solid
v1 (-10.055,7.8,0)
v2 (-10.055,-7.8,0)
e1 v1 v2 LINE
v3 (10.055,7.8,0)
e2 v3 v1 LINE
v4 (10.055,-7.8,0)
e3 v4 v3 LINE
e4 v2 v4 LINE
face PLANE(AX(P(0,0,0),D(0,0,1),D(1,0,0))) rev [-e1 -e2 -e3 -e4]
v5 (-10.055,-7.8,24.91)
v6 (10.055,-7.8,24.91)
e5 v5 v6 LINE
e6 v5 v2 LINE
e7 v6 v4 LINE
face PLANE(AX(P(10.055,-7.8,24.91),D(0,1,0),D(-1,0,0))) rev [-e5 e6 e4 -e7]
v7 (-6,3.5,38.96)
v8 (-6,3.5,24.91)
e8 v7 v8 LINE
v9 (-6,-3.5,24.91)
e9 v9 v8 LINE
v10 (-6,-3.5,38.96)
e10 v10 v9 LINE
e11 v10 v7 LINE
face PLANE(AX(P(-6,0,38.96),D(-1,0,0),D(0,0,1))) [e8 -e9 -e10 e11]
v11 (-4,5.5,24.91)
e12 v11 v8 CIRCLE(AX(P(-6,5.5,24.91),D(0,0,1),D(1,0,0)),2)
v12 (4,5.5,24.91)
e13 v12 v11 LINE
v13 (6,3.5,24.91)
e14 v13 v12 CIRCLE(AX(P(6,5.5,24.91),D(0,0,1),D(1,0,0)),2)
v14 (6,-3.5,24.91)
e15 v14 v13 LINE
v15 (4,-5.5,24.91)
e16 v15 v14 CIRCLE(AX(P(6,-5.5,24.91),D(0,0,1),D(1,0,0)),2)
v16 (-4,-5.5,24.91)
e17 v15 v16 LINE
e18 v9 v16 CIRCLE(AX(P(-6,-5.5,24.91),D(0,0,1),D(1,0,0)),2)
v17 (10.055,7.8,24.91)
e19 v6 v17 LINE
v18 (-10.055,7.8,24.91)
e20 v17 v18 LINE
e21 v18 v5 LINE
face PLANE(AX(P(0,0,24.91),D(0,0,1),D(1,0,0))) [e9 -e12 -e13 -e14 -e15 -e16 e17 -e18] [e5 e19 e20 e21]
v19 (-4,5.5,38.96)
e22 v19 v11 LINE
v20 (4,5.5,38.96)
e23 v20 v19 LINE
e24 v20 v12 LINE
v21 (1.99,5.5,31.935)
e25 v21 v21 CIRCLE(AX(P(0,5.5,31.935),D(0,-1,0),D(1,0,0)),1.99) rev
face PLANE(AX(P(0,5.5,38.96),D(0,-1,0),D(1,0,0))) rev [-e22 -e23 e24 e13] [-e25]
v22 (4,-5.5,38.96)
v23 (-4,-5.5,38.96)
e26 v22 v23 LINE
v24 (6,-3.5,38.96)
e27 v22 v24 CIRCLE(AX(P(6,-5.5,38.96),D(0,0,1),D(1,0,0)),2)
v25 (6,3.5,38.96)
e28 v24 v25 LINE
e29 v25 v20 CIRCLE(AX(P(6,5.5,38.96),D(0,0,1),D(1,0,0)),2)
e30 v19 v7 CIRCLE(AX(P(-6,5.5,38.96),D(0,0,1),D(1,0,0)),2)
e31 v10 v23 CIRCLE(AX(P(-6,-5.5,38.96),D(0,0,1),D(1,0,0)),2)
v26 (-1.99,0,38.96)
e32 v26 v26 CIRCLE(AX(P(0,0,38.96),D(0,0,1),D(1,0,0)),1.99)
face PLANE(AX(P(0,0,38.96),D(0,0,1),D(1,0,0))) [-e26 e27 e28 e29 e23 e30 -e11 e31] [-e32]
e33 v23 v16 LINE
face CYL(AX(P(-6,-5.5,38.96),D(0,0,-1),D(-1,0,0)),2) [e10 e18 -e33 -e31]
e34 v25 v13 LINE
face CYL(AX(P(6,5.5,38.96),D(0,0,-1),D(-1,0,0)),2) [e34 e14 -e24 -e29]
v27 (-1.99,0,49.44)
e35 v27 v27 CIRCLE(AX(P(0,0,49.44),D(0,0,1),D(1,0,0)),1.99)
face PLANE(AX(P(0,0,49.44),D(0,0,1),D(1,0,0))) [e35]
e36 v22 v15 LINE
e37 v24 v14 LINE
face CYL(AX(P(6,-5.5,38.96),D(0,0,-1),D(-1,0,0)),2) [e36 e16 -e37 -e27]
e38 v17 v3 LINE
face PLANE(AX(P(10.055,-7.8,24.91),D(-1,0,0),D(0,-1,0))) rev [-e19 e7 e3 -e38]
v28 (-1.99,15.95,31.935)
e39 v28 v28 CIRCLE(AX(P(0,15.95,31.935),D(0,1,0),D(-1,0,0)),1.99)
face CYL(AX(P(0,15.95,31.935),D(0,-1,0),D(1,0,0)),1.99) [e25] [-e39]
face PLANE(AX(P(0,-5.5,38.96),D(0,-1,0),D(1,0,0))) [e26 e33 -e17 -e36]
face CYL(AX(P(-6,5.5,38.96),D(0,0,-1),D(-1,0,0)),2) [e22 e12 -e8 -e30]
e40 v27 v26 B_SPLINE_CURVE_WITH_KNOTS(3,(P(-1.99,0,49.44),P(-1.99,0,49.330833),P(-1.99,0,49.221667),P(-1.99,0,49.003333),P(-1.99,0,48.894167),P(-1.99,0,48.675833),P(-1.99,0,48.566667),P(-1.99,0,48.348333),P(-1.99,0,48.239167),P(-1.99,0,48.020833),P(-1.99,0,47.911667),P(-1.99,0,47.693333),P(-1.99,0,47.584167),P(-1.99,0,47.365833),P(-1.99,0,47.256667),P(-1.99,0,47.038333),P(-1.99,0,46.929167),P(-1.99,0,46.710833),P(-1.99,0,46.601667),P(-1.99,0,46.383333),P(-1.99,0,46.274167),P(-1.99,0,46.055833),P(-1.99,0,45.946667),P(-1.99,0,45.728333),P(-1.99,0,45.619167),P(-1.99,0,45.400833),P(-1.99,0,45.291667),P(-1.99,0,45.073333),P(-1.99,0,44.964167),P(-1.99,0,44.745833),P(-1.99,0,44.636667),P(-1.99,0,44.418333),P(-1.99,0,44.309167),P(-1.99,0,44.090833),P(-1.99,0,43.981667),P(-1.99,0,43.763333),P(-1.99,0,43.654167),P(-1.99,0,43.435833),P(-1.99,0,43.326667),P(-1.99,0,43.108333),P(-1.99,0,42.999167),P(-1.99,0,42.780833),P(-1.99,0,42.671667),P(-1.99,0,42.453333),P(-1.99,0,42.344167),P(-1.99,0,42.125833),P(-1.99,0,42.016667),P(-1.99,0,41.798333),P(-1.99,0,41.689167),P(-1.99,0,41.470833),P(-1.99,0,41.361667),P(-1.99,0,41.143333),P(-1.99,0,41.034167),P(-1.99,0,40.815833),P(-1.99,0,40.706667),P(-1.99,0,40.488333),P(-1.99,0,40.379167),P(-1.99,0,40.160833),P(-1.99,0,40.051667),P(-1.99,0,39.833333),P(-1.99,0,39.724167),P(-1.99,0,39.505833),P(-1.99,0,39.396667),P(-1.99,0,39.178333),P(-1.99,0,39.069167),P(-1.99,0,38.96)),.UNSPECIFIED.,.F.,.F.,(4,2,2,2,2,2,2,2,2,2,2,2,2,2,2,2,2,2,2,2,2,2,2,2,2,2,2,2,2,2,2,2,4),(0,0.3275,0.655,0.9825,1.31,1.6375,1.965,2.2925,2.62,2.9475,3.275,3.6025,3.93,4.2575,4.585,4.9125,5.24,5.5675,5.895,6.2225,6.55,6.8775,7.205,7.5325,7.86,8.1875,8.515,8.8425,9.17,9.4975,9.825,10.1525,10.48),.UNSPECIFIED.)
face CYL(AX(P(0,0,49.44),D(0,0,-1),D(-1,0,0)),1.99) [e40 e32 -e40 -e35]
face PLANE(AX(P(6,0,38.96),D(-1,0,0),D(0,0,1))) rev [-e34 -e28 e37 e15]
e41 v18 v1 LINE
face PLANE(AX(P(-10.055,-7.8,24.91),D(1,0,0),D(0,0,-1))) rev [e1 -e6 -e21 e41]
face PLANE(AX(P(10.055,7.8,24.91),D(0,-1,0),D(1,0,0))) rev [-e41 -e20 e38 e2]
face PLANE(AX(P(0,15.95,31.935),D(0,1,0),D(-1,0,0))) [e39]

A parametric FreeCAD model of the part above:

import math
import FreeCAD as App
import Part
import Sketcher
from FreeCAD import Vector

doc = App.newDocument("Part")
body = doc.addObject("PartDesign::Body", "Body")

# Sketch on XY plane
sketch1 = body.newObject("Sketcher::SketchObject", "Sketch")
sketch1.AttachmentSupport = (doc.getObject("XY_Plane"), [""])
sketch1.MapMode = "FlatFace"
sketch1.addGeometry(Part.LineSegment(Vector(-10, 8, 0), Vector(-10, -8, 0)), False)
sketch1.addGeometry(Part.LineSegment(Vector(-10, -8, 0), Vector(10, -8, 0)), False)
sketch1.addGeometry(Part.LineSegment(Vector(10, -8, 0), Vector(10, 8, 0)), False)
sketch1.addGeometry(Part.LineSegment(Vector(10, 8, 0), Vector(-10, 8, 0)), False)
sketch1.addConstraint(Sketcher.Constraint("Coincident", 0, 2, 1, 1))
sketch1.addConstraint(Sketcher.Constraint("Coincident", 1, 2, 2, 1))
sketch1.addConstraint(Sketcher.Constraint("Coincident", 2, 2, 3, 1))
sketch1.addConstraint(Sketcher.Constraint("Coincident", 3, 2, 0, 1))
sketch1.addConstraint(Sketcher.Constraint("Vertical", 0))
sketch1.addConstraint(Sketcher.Constraint("Horizontal", 1))
sketch1.addConstraint(Sketcher.Constraint("Vertical", 2))
sketch1.addConstraint(Sketcher.Constraint("Horizontal", 3))
sketch1.addConstraint(Sketcher.Constraint("Symmetric", 0, 2, 2, 2, -1, 1))
sketch1.addConstraint(Sketcher.Constraint("DistanceY", 0, 2, 0, 1, 15.6))
sketch1.addConstraint(Sketcher.Constraint("DistanceX", 1, 1, 1, 2, 20.11))
pad1 = body.newObject("PartDesign::Pad", "Pad")
pad1.Profile = sketch1
pad1.Length = 24.91

# Sketch on XY plane
sketch2 = body.newObject("Sketcher::SketchObject", "Sketch001")
sketch2.AttachmentSupport = (doc.getObject("XY_Plane"), [""])
sketch2.MapMode = "FlatFace"
sketch2.AttachmentOffset = App.Placement(Vector(0, 0, 24.91), App.Rotation())
sketch2.addGeometry(Part.ArcOfCircle(Part.Circle(Vector(-6, 5.5, 0), Vector(0, 0, 1), 2), math.radians(0), math.radians(270)), False)
sketch2.addGeometry(Part.LineSegment(Vector(-6, 3.5, 0), Vector(-6, -3.5, 0)), False)
sketch2.addGeometry(Part.ArcOfCircle(Part.Circle(Vector(-6, -5.5, 0), Vector(0, 0, 1), 2), math.radians(90), math.radians(360)), False)
sketch2.addGeometry(Part.LineSegment(Vector(-4, -5.5, 0), Vector(4, -5.5, 0)), False)
sketch2.addGeometry(Part.ArcOfCircle(Part.Circle(Vector(6, -5.5, 0), Vector(0, 0, 1), 2), math.radians(180), math.radians(450)), False)
sketch2.addGeometry(Part.LineSegment(Vector(6, -3.5, 0), Vector(6, 3.5, 0)), False)
sketch2.addGeometry(Part.ArcOfCircle(Part.Circle(Vector(6, 5.5, 0), Vector(0, 0, 1), 2), math.radians(-90), math.radians(180)), False)
sketch2.addGeometry(Part.LineSegment(Vector(4, 5.5, 0), Vector(-4, 5.5, 0)), False)
sketch2.addConstraint(Sketcher.Constraint("Coincident", 0, 2, 1, 1))
sketch2.addConstraint(Sketcher.Constraint("Coincident", 1, 2, 2, 1))
sketch2.addConstraint(Sketcher.Constraint("Coincident", 2, 2, 3, 1))
sketch2.addConstraint(Sketcher.Constraint("Coincident", 3, 2, 4, 1))
sketch2.addConstraint(Sketcher.Constraint("Coincident", 4, 2, 5, 1))
sketch2.addConstraint(Sketcher.Constraint("Coincident", 5, 2, 6, 1))
sketch2.addConstraint(Sketcher.Constraint("Coincident", 6, 2, 7, 1))
sketch2.addConstraint(Sketcher.Constraint("Coincident", 7, 2, 0, 1))
sketch2.addConstraint(Sketcher.Constraint("Vertical", 1))
sketch2.addConstraint(Sketcher.Constraint("Horizontal", 3))
sketch2.addConstraint(Sketcher.Constraint("Vertical", 5))
sketch2.addConstraint(Sketcher.Constraint("Horizontal", 7))
sketch2.addConstraint(Sketcher.Constraint("Equal", 0, 2))
sketch2.addConstraint(Sketcher.Constraint("Equal", 2, 4))
sketch2.addConstraint(Sketcher.Constraint("Equal", 4, 6))
sketch2.addConstraint(Sketcher.Constraint("Symmetric", 0, 3, 4, 3, -1, 1))
sketch2.addConstraint(Sketcher.Constraint("Symmetric", 2, 3, 6, 3, -1, 1))
sketch2.addConstraint(Sketcher.Constraint("Symmetric", 2, 3, 4, 3, -2))
sketch2.addConstraint(Sketcher.Constraint("Horizontal", 4, 3, 2, 2))
sketch2.addConstraint(Sketcher.Constraint("Horizontal", 0, 3, 6, 2))
sketch2.addConstraint(Sketcher.Constraint("Vertical", 2, 3, 0, 2))
sketch2.addConstraint(Sketcher.Constraint("Vertical", 6, 3, 4, 2))
sketch2.addConstraint(Sketcher.Constraint("Radius", 0, 2.0))
sketch2.addConstraint(Sketcher.Constraint("DistanceX", 3, 1, 3, 2, 8.0))
sketch2.addConstraint(Sketcher.Constraint("DistanceY", 1, 2, 1, 1, 7.0))
pad2 = body.newObject("PartDesign::Pad", "Pad001")
pad2.Profile = sketch2
pad2.Length = 14.05

# Sketch on XZ plane
sketch3 = body.newObject("Sketcher::SketchObject", "Sketch002")
sketch3.AttachmentSupport = (doc.getObject("XZ_Plane"), [""])
sketch3.MapMode = "FlatFace"
sketch3.AttachmentOffset = App.Placement(Vector(0, 0, -5.5), App.Rotation())
sketch3.addGeometry(Part.Circle(Vector(0, 31.9, 0), Vector(0, 0, 1), 2), False)
sketch3.addConstraint(Sketcher.Constraint("PointOnObject", 0, 3, -2))
sketch3.addConstraint(Sketcher.Constraint("Diameter", 0, 3.98))
sketch3.addConstraint(Sketcher.Constraint("DistanceY", -1, 1, 0, 3, 31.935))
pad3 = body.newObject("PartDesign::Pad", "Pad002")
pad3.Profile = sketch3
pad3.Length = 10.45
pad3.Reversed = True

# Sketch on XY plane
sketch4 = body.newObject("Sketcher::SketchObject", "Sketch003")
sketch4.AttachmentSupport = (doc.getObject("XY_Plane"), [""])
sketch4.MapMode = "FlatFace"
sketch4.AttachmentOffset = App.Placement(Vector(0, 0, 38.96), App.Rotation())
sketch4.addGeometry(Part.Circle(Vector(0, 0, 0), Vector(0, 0, 1), 2), False)
sketch4.addConstraint(Sketcher.Constraint("Coincident", 0, 3, -1, 1))
sketch4.addConstraint(Sketcher.Constraint("Diameter", 0, 3.98))
pad4 = body.newObject("PartDesign::Pad", "Pad003")
pad4.Profile = sketch4
pad4.Length = 10.48

doc.recompute()
